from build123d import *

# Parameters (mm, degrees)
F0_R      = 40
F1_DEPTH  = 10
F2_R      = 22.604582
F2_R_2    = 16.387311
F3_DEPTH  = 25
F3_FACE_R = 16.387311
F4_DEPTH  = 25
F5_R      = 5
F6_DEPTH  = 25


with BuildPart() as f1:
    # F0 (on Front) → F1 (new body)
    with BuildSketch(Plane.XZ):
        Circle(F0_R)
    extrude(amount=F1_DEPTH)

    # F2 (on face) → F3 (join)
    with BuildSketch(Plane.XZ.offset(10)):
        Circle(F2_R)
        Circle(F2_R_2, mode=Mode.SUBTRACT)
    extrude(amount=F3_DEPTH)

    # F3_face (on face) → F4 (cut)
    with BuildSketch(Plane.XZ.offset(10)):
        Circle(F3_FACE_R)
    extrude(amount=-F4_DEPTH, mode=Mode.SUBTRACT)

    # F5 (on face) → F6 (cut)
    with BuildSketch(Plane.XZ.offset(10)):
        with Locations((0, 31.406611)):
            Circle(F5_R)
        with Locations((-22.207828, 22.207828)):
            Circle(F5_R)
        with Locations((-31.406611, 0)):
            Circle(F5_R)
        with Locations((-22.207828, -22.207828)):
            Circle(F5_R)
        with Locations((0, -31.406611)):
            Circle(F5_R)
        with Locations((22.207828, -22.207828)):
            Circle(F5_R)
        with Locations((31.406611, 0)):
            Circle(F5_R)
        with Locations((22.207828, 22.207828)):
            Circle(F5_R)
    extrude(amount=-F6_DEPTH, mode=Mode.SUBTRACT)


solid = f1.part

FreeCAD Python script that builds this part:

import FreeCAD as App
import Part
import Sketcher
from FreeCAD import Vector
Q = App.Units.Quantity

doc = App.newDocument("Part")
body = doc.addObject("PartDesign::Body", "Body")

sketch1 = body.newObject("Sketcher::SketchObject", "Sketch")
sketch1.AttachmentSupport = (doc.getObject("XZ_Plane"), [""])
sketch1.MapMode = "FlatFace"
sketch1.addGeometry(Part.Circle(Vector(0, 0, 0), Vector(0, 0, 1), 40), False)
sketch1.addConstraint([
    Sketcher.Constraint("Coincident", 0, 3, -1, 1),
    Sketcher.Constraint("Diameter", 0, Q("80 mm")),
])
pad1 = body.newObject("PartDesign::Pad", "Pad")
pad1.Profile = sketch1
pad1.Length = 10

sketch2 = body.newObject("Sketcher::SketchObject", "Sketch001")
sketch2.AttachmentSupport = (doc.getObject("XZ_Plane"), [""])
sketch2.MapMode = "FlatFace"
sketch2.AttachmentOffset = App.Placement(Vector(0, 0, 10), App.Rotation())
sketch2.addGeometry([
    Part.Circle(Vector(0, 0, 0), Vector(0, 0, 1), 23),
    Part.Circle(Vector(0, 0, 0), Vector(0, 0, 1), 16),
], False)
sketch2.addConstraint([
    Sketcher.Constraint("Coincident", 0, 3, -1, 1),
    Sketcher.Constraint("Coincident", 1, 3, -1, 1),
    Sketcher.Constraint("Diameter", 0, Q("45.209164 mm")),
    Sketcher.Constraint("Diameter", 1, Q("32.774622 mm")),
])
pad2 = body.newObject("PartDesign::Pad", "Pad001")
pad2.Profile = sketch2
pad2.Length = 25

sketch3 = body.newObject("Sketcher::SketchObject", "Sketch002")
sketch3.AttachmentSupport = (doc.getObject("XZ_Plane"), [""])
sketch3.MapMode = "FlatFace"
sketch3.AttachmentOffset = App.Placement(Vector(0, 0, 10), App.Rotation())
sketch3.addGeometry(Part.Circle(Vector(0, 0, 0), Vector(0, 0, 1), 16), False)
sketch3.addConstraint([
    Sketcher.Constraint("Coincident", 0, 3, -1, 1),
    Sketcher.Constraint("Diameter", 0, Q("32.774622 mm")),
])
pocket1 = body.newObject("PartDesign::Pocket", "Pocket")
pocket1.Profile = sketch3
pocket1.Length = 25

sketch4 = body.newObject("Sketcher::SketchObject", "Sketch003")
sketch4.AttachmentSupport = (doc.getObject("XZ_Plane"), [""])
sketch4.MapMode = "FlatFace"
sketch4.AttachmentOffset = App.Placement(Vector(0, 0, 10), App.Rotation())
sketch4.addGeometry([
    Part.Circle(Vector(0, 31, 0), Vector(0, 0, 1), 5),
    Part.Circle(Vector(-22, 22, 0), Vector(0, 0, 1), 5),
    Part.Circle(Vector(-31, 0, 0), Vector(0, 0, 1), 5),
    Part.Circle(Vector(-22, -22, 0), Vector(0, 0, 1), 5),
    Part.Circle(Vector(0, -31, 0), Vector(0, 0, 1), 5),
    Part.Circle(Vector(22, -22, 0), Vector(0, 0, 1), 5),
    Part.Circle(Vector(31, 0, 0), Vector(0, 0, 1), 5),
    Part.Circle(Vector(22, 22, 0), Vector(0, 0, 1), 5),
], False)
sketch4.addConstraint([
    Sketcher.Constraint("Equal", 0, 1),
    Sketcher.Constraint("Equal", 1, 2),
    Sketcher.Constraint("Equal", 2, 3),
    Sketcher.Constraint("Equal", 3, 4),
    Sketcher.Constraint("Equal", 4, 5),
    Sketcher.Constraint("Equal", 5, 6),
    Sketcher.Constraint("Equal", 6, 7),
    Sketcher.Constraint("Symmetric", 0, 3, 4, 3, -1, 1),
    Sketcher.Constraint("Symmetric", 1, 3, 5, 3, -1, 1),
    Sketcher.Constraint("Symmetric", 2, 3, 6, 3, -1, 1),
    Sketcher.Constraint("Symmetric", 3, 3, 7, 3, -1, 1),
    Sketcher.Constraint("Symmetric", 3, 3, 5, 3, -2),
    Sketcher.Constraint("PointOnObject", 0, 3, -2),
    Sketcher.Constraint("PointOnObject", 2, 3, -1),
    Sketcher.Constraint("Diameter", 0, Q("10 mm")),
    Sketcher.Constraint("DistanceY", -1, 1, 0, 3, Q("31.406611 mm")),
    Sketcher.Constraint("DistanceX", 2, 3, -1, 1, Q("31.406611 mm")),
    Sketcher.Constraint("DistanceY", 3, 3, 0, 3, Q("53.614439 mm")),
    Sketcher.Constraint("DistanceX", 2, 3, 5, 3, Q("53.614439 mm")),
])
pocket2 = body.newObject("PartDesign::Pocket", "Pocket001")
pocket2.Profile = sketch4
pocket2.Length = 25

doc.recompute()
